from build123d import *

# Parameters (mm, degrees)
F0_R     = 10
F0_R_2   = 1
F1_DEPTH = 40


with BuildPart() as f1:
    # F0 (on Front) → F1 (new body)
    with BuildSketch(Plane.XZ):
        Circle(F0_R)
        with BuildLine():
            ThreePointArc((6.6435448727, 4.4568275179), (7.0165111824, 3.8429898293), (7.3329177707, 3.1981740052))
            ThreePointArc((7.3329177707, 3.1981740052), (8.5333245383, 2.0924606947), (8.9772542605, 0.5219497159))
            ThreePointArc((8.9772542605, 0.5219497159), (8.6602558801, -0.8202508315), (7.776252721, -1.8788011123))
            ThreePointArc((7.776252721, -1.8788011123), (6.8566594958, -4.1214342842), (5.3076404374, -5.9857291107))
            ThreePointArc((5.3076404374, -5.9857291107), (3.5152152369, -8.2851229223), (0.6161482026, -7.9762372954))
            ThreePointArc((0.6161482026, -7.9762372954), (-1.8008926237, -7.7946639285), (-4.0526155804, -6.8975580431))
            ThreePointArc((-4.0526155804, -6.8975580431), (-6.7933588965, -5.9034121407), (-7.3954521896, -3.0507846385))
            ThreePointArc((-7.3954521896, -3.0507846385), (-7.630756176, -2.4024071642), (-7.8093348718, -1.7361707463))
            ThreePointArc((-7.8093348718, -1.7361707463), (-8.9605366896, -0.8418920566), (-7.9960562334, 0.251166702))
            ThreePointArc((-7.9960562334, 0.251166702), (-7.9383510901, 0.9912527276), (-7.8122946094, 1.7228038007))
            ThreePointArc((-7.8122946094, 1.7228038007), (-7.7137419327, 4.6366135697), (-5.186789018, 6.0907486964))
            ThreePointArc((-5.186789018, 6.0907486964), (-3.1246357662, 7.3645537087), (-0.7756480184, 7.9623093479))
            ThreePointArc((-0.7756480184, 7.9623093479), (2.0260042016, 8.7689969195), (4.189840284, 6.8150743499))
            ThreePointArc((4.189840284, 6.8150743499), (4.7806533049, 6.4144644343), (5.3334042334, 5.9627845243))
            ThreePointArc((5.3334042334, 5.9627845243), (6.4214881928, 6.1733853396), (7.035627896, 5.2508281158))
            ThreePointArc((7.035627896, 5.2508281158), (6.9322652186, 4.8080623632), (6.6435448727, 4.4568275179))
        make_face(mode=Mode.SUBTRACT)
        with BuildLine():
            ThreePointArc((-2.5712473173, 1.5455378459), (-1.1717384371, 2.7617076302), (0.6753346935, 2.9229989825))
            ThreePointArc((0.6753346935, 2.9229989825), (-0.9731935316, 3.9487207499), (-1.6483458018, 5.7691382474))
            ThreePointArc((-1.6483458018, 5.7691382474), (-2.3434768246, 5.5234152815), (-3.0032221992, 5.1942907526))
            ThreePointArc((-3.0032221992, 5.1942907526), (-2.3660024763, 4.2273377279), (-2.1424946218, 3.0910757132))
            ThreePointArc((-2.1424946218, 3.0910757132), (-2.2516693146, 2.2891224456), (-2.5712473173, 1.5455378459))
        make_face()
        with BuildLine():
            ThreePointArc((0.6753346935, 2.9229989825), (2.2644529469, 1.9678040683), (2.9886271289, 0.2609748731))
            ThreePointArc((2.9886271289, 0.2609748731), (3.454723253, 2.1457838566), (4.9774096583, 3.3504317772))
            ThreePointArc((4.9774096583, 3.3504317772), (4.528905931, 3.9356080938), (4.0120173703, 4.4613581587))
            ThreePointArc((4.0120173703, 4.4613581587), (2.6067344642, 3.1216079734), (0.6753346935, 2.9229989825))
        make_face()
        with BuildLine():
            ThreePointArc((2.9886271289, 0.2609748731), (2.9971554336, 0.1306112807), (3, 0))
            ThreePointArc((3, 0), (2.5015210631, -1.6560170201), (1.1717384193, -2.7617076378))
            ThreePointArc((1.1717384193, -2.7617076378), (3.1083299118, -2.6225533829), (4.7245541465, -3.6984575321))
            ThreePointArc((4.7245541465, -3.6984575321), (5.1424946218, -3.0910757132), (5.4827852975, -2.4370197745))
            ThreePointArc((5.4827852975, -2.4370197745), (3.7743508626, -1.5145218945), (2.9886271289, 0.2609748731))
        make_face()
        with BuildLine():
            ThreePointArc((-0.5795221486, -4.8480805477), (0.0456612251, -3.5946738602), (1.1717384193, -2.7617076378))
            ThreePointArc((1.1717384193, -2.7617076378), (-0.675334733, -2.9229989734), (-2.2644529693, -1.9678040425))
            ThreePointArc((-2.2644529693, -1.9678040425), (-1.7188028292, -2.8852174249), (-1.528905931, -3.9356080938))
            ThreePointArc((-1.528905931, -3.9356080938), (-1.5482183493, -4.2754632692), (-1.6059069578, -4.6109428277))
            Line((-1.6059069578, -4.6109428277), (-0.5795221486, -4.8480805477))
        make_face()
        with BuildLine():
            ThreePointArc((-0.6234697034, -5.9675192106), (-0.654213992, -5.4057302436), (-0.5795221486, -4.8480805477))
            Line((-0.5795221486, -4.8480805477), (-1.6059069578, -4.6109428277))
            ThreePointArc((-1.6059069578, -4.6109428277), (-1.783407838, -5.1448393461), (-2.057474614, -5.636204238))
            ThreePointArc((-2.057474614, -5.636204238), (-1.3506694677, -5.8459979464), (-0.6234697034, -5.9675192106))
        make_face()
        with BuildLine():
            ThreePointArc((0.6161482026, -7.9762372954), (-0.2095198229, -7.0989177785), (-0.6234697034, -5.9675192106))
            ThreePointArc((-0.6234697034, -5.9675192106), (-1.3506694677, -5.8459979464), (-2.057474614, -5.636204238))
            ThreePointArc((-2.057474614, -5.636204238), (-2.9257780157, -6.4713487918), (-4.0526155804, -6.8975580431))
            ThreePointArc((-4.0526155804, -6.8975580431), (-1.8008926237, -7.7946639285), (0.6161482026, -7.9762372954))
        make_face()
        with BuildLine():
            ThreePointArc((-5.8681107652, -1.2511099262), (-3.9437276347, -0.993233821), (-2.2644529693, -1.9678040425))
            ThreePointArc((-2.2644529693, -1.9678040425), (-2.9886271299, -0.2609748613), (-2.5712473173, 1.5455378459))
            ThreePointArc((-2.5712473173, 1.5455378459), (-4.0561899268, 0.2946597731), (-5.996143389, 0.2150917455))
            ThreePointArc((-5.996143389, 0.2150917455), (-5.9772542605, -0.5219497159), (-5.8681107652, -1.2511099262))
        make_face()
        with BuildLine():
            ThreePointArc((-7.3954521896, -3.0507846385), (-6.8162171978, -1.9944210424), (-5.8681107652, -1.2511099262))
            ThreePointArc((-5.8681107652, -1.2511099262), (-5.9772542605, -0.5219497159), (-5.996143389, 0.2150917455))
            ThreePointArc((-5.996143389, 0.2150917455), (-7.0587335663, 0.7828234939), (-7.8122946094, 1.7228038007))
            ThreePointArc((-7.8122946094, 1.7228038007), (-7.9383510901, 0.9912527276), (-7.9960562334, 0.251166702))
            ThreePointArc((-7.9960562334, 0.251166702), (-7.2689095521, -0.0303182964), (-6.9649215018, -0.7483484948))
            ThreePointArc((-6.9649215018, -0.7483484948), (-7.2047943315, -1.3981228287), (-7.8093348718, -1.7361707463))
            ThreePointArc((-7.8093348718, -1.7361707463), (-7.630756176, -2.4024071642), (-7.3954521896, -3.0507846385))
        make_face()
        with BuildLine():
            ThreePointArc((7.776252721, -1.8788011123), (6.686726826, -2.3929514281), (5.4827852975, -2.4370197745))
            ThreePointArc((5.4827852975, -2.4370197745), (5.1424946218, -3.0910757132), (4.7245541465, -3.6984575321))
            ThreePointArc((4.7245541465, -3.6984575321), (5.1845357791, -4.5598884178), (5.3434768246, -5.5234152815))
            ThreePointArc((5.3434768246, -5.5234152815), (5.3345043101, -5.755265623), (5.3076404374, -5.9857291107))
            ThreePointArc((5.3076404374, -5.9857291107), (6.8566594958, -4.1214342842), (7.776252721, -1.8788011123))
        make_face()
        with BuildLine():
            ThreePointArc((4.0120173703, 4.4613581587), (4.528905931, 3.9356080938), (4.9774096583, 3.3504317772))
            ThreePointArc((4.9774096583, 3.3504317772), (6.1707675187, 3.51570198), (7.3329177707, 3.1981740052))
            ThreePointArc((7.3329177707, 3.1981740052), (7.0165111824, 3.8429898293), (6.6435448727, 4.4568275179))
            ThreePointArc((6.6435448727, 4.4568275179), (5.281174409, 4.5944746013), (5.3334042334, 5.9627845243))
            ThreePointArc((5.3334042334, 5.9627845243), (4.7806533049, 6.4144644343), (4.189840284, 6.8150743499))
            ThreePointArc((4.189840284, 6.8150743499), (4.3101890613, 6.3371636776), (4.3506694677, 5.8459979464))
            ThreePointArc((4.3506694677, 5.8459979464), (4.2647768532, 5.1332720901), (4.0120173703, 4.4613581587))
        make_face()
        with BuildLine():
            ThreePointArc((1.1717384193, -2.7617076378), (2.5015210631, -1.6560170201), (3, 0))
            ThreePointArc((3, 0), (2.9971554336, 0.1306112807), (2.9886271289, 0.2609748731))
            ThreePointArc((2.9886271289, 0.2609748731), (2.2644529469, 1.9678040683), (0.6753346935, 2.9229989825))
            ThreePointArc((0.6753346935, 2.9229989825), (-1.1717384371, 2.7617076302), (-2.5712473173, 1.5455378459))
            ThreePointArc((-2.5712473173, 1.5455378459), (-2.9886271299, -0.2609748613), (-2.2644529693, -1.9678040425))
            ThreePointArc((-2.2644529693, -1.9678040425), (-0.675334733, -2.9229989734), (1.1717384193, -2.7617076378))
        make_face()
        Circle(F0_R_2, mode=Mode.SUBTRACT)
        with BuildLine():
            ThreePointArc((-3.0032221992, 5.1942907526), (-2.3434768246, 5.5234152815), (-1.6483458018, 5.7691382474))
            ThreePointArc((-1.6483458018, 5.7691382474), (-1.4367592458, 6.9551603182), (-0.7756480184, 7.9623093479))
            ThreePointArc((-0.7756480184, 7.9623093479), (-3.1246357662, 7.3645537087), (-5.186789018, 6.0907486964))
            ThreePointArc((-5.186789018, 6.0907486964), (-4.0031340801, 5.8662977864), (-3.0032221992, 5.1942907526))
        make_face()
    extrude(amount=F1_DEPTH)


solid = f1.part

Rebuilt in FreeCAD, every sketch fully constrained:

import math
import FreeCAD as App
import Part
import Sketcher
Q = App.Units.Quantity

doc = App.newDocument("Part")
body = doc.addObject("PartDesign::Body", "Body")

sketch1 = body.newObject("Sketcher::SketchObject", "Sketch")
sketch1.AttachmentSupport = (doc.getObject("XZ_Plane"), [""])
sketch1.MapMode = "FlatFace"
sketch1.addGeometry([
    Part.Circle(App.Vector(0, 0, 0), App.Vector(0, 0, 1), 10),
    Part.ArcOfCircle(Part.Circle(App.Vector(-4.53, -3.94, 0), App.Vector(0, 0, 1), 3), math.radians(41), math.radians(117)),
    Part.ArcOfCircle(Part.Circle(App.Vector(-4.53, -3.94, 0), App.Vector(0, 0, 1), 3), math.radians(0), math.radians(41)),
    Part.ArcOfCircle(Part.Circle(App.Vector(-4.53, -3.94, 0), App.Vector(0, 0, 1), 3), math.radians(-13.01), math.radians(0)),
    Part.ArcOfCircle(Part.Circle(App.Vector(-4.53, -3.94, 0), App.Vector(0, 0, 1), 3), math.radians(-35), math.radians(-13)),
    Part.ArcOfCircle(Part.Circle(App.Vector(-4.53, -3.94, 0), App.Vector(0, 0, 1), 3), math.radians(-81), math.radians(-35)),
    Part.ArcOfCircle(Part.Circle(App.Vector(-4.53, -3.94, 0), App.Vector(0, 0, 1), 3), math.radians(163), math.radians(279)),
    Part.ArcOfCircle(Part.Circle(App.Vector(-4.53, -3.94, 0), App.Vector(0, 0, 1), 3), math.radians(117), math.radians(163)),
    Part.ArcOfCircle(Part.Circle(App.Vector(-7.96, -0.75, 0), App.Vector(0, 0, 1), 1), math.radians(92), math.radians(279)),
    Part.ArcOfCircle(Part.Circle(App.Vector(-7.96, -0.75, 0), App.Vector(0, 0, 1), 1), math.radians(0), math.radians(92)),
    Part.ArcOfCircle(Part.Circle(App.Vector(-7.96, -0.75, 0), App.Vector(0, 0, 1), 1), math.radians(-81), math.radians(0)),
    Part.Circle(App.Vector(0, 0, 0), App.Vector(0, 0, 1), 1),
    Part.ArcOfCircle(Part.Circle(App.Vector(2.34, -5.52, 0), App.Vector(0, 0, 1), 3), math.radians(113), math.radians(167)),
    Part.ArcOfCircle(Part.Circle(App.Vector(2.34, -5.52, 0), App.Vector(0, 0, 1), 3), math.radians(37), math.radians(113)),
    Part.ArcOfCircle(Part.Circle(App.Vector(2.34, -5.52, 0), App.Vector(0, 0, 1), 3), math.radians(0), math.radians(37)),
    Part.ArcOfCircle(Part.Circle(App.Vector(2.34, -5.52, 0), App.Vector(0, 0, 1), 3), math.radians(-8.86), math.radians(0)),
    Part.ArcOfCircle(Part.Circle(App.Vector(2.34, -5.52, 0), App.Vector(0, 0, 1), 3), math.radians(-125), math.radians(-9)),
    Part.ArcOfCircle(Part.Circle(App.Vector(2.34, -5.52, 0), App.Vector(0, 0, 1), 3), math.radians(-171), math.radians(-125)),
    Part.ArcOfCircle(Part.Circle(App.Vector(2.34, -5.52, 0), App.Vector(0, 0, 1), 3), math.radians(167), math.radians(189)),
    Part.ArcOfCircle(Part.Circle(App.Vector(1.35, 5.85, 0), App.Vector(0, 0, 1), 3), math.radians(-103), math.radians(-27)),
    Part.ArcOfCircle(Part.Circle(App.Vector(1.35, 5.85, 0), App.Vector(0, 0, 1), 3), math.radians(-179), math.radians(-103)),
    Part.ArcOfCircle(Part.Circle(App.Vector(1.35, 5.85, 0), App.Vector(0, 0, 1), 3), math.radians(135), math.radians(181)),
    Part.ArcOfCircle(Part.Circle(App.Vector(1.35, 5.85, 0), App.Vector(0, 0, 1), 3), math.radians(19), math.radians(135)),
    Part.ArcOfCircle(Part.Circle(App.Vector(1.35, 5.85, 0), App.Vector(0, 0, 1), 3), math.radians(0), math.radians(18.85)),
    Part.ArcOfCircle(Part.Circle(App.Vector(1.35, 5.85, 0), App.Vector(0, 0, 1), 3), math.radians(-27), math.radians(0)),
    Part.ArcOfCircle(Part.Circle(App.Vector(-5.14, 3.09, 0), App.Vector(0, 0, 1), 3), math.radians(0), math.radians(45)),
    Part.ArcOfCircle(Part.Circle(App.Vector(-5.14, 3.09, 0), App.Vector(0, 0, 1), 3), math.radians(-31), math.radians(0)),
    Part.ArcOfCircle(Part.Circle(App.Vector(-5.14, 3.09, 0), App.Vector(0, 0, 1), 3), math.radians(-107), math.radians(-31)),
    Part.ArcOfCircle(Part.Circle(App.Vector(-5.14, 3.09, 0), App.Vector(0, 0, 1), 3), math.radians(-153), math.radians(-107)),
    Part.ArcOfCircle(Part.Circle(App.Vector(-5.14, 3.09, 0), App.Vector(0, 0, 1), 3), math.radians(91), math.radians(207)),
    Part.ArcOfCircle(Part.Circle(App.Vector(-5.14, 3.09, 0), App.Vector(0, 0, 1), 3), math.radians(45), math.radians(91)),
    Part.ArcOfCircle(Part.Circle(App.Vector(5.98, 0.52, 0), App.Vector(0, 0, 1), 3), math.radians(-175), math.radians(-99)),
    Part.ArcOfCircle(Part.Circle(App.Vector(5.98, 0.52, 0), App.Vector(0, 0, 1), 3), math.radians(109), math.radians(185)),
    Part.ArcOfCircle(Part.Circle(App.Vector(5.98, 0.52, 0), App.Vector(0, 0, 1), 3), math.radians(63), math.radians(109)),
    Part.ArcOfCircle(Part.Circle(App.Vector(5.98, 0.52, 0), App.Vector(0, 0, 1), 3), math.radians(0), math.radians(63)),
    Part.ArcOfCircle(Part.Circle(App.Vector(5.98, 0.52, 0), App.Vector(0, 0, 1), 3), math.radians(-53), math.radians(0)),
    Part.ArcOfCircle(Part.Circle(App.Vector(5.98, 0.52, 0), App.Vector(0, 0, 1), 3), math.radians(-99), math.radians(-53)),
    Part.ArcOfCircle(Part.Circle(App.Vector(6.04, 5.25, 0), App.Vector(0, 0, 1), 1), math.radians(-53), math.radians(0)),
    Part.ArcOfCircle(Part.Circle(App.Vector(6.04, 5.25, 0), App.Vector(0, 0, 1), 1), math.radians(135), math.radians(307)),
    Part.ArcOfCircle(Part.Circle(App.Vector(6.04, 5.25, 0), App.Vector(0, 0, 1), 1), math.radians(0), math.radians(135)),
], False)
sketch1.addConstraint([
    Sketcher.Constraint("Tangent", 1, 1, 2, 2),
    Sketcher.Constraint("Tangent", 2, 1, 3, 2),
    Sketcher.Constraint("Tangent", 3, 1, 4, 2),
    Sketcher.Constraint("Tangent", 4, 1, 5, 2),
    Sketcher.Constraint("Tangent", 5, 1, 6, 2),
    Sketcher.Constraint("Tangent", 6, 1, 7, 2),
    Sketcher.Constraint("Tangent", 7, 1, 1, 2),
    Sketcher.Constraint("Tangent", 8, 1, 9, 2),
    Sketcher.Constraint("Tangent", 9, 1, 10, 2),
    Sketcher.Constraint("Tangent", 10, 1, 8, 2),
    Sketcher.Constraint("Tangent", 12, 1, 13, 2),
    Sketcher.Constraint("Tangent", 13, 1, 14, 2),
    Sketcher.Constraint("Tangent", 14, 1, 15, 2),
    Sketcher.Constraint("Tangent", 15, 1, 16, 2),
    Sketcher.Constraint("Tangent", 16, 1, 17, 2),
    Sketcher.Constraint("Tangent", 17, 1, 18, 2),
    Sketcher.Constraint("Tangent", 18, 1, 12, 2),
    Sketcher.Constraint("Tangent", 19, 1, 20, 2),
    Sketcher.Constraint("Tangent", 20, 1, 21, 2),
    Sketcher.Constraint("Tangent", 21, 1, 22, 2),
    Sketcher.Constraint("Tangent", 22, 1, 23, 2),
    Sketcher.Constraint("Tangent", 23, 1, 24, 2),
    Sketcher.Constraint("Tangent", 24, 1, 19, 2),
    Sketcher.Constraint("Tangent", 25, 1, 26, 2),
    Sketcher.Constraint("Tangent", 26, 1, 27, 2),
    Sketcher.Constraint("Tangent", 27, 1, 28, 2),
    Sketcher.Constraint("Tangent", 28, 1, 29, 2),
    Sketcher.Constraint("Tangent", 29, 1, 30, 2),
    Sketcher.Constraint("Tangent", 30, 1, 25, 2),
    Sketcher.Constraint("Tangent", 31, 1, 32, 2),
    Sketcher.Constraint("Tangent", 32, 1, 33, 2),
    Sketcher.Constraint("Tangent", 33, 1, 34, 2),
    Sketcher.Constraint("Tangent", 34, 1, 35, 2),
    Sketcher.Constraint("Tangent", 35, 1, 36, 2),
    Sketcher.Constraint("Tangent", 36, 1, 31, 2),
    Sketcher.Constraint("Tangent", 37, 1, 38, 2),
    Sketcher.Constraint("Tangent", 38, 1, 39, 2),
    Sketcher.Constraint("Tangent", 39, 1, 37, 2),
    Sketcher.Constraint("Coincident", 0, 3, -1, 1),
    Sketcher.Constraint("Coincident", 11, 3, -1, 1),
    Sketcher.Constraint("Coincident", 3, 3, 1, 3),
    Sketcher.Constraint("Coincident", 5, 3, 1, 3),
    Sketcher.Constraint("Coincident", 14, 3, 12, 3),
    Sketcher.Constraint("Coincident", 16, 3, 12, 3),
    Sketcher.Constraint("Coincident", 21, 3, 19, 3),
    Sketcher.Constraint("Coincident", 27, 3, 25, 3),
    Sketcher.Constraint("Coincident", 33, 3, 31, 3),
    Sketcher.Constraint("Equal", 10, 11),
    Sketcher.Constraint("Equal", 7, 12),
    Sketcher.Constraint("Equal", 18, 19),
    Sketcher.Constraint("Equal", 21, 22),
    Sketcher.Constraint("Equal", 24, 25),
    Sketcher.Constraint("Equal", 27, 28),
    Sketcher.Constraint("Equal", 30, 31),
    Sketcher.Constraint("Equal", 33, 34),
    Sketcher.Constraint("Equal", 11, 37),
    Sketcher.Constraint("Horizontal", 7, 3, 2, 1),
    Sketcher.Constraint("Horizontal", 10, 3, 9, 1),
    Sketcher.Constraint("Horizontal", 18, 3, 14, 1),
    Sketcher.Constraint("Horizontal", 24, 3, 23, 1),
    Sketcher.Constraint("Horizontal", 30, 3, 25, 1),
    Sketcher.Constraint("Horizontal", 36, 3, 34, 1),
    Sketcher.Constraint("Horizontal", 38, 3, 39, 1),
    Sketcher.Constraint("Diameter", 0, Q("20 mm")),
    Sketcher.Constraint("Diameter", 11, Q("2 mm")),
    Sketcher.Constraint("Radius", 1, Q("3 mm")),
    Sketcher.Constraint("DistanceY", -1, 1, 19, 1, Q("2.922999 mm")),
    Sketcher.Constraint("DistanceY", 35, 1, -1, 1, Q("1.878801 mm")),
    Sketcher.Constraint("DistanceY", 1, 3, -1, 1, Q("3.935608 mm")),
    Sketcher.Constraint("DistanceX", 8, 3, -1, 1, Q("7.964922 mm")),
    Sketcher.Constraint("DistanceY", 8, 3, -1, 1, Q("0.748348 mm")),
    Sketcher.Constraint("DistanceX", -1, 1, 19, 3, Q("1.350669 mm")),
    Sketcher.Constraint("DistanceY", -1, 1, 31, 3, Q("0.52195 mm")),
    Sketcher.Constraint("DistanceY", -1, 1, 37, 3, Q("5.250828 mm")),
    Sketcher.Constraint("DistanceY", 5, 1, -1, 1, Q("6.897558 mm")),
    Sketcher.Constraint("DistanceX", 7, 1, -1, 1, Q("5.868111 mm")),
    Sketcher.Constraint("DistanceY", 7, 1, -1, 1, Q("1.25111 mm")),
    Sketcher.Constraint("DistanceY", 10, 1, -1, 1, Q("1.736171 mm")),
    Sketcher.Constraint("DistanceX", -1, 1, 12, 1, Q("1.171738 mm")),
    Sketcher.Constraint("DistanceX", -1, 1, 15, 1, Q("5.30764 mm")),
    Sketcher.Constraint("DistanceY", 15, 1, -1, 1, Q("5.985729 mm")),
    Sketcher.Constraint("DistanceX", -1, 1, 16, 1, Q("0.616148 mm")),
    Sketcher.Constraint("DistanceX", 17, 1, -1, 1, Q("0.62347 mm")),
    Sketcher.Constraint("DistanceY", 17, 1, -1, 1, Q("5.967519 mm")),
    Sketcher.Constraint("DistanceY", 18, 1, -1, 1, Q("4.848081 mm")),
    Sketcher.Constraint("DistanceY", -1, 1, 20, 1, Q("5.769138 mm")),
    Sketcher.Constraint("DistanceX", 21, 1, -1, 1, Q("0.775648 mm")),
    Sketcher.Constraint("DistanceY", -1, 1, 21, 1, Q("7.962309 mm")),
    Sketcher.Constraint("DistanceX", -1, 1, 22, 1, Q("4.18984 mm")),
    Sketcher.Constraint("DistanceY", -1, 1, 24, 1, Q("4.461358 mm")),
    Sketcher.Constraint("DistanceY", -1, 1, 27, 1, Q("0.215092 mm")),
    Sketcher.Constraint("DistanceX", 29, 1, -1, 1, Q("5.186789 mm")),
    Sketcher.Constraint("DistanceY", -1, 1, 29, 1, Q("6.090749 mm")),
    Sketcher.Constraint("DistanceY", -1, 1, 30, 1, Q("5.194291 mm")),
    Sketcher.Constraint("DistanceX", -1, 1, 32, 1, Q("4.97741 mm")),
    Sketcher.Constraint("DistanceY", -1, 1, 32, 1, Q("3.350432 mm")),
    Sketcher.Constraint("DistanceY", 36, 1, -1, 1, Q("2.43702 mm")),
    Sketcher.Constraint("DistanceX", 25, 3, -1, 1, Q("5.142495 mm")),
    Sketcher.Constraint("DistanceX", -1, 1, 37, 3, Q("6.035628 mm")),
    Sketcher.Constraint("DistanceX", 1, 1, -1, 1, Q("2.264453 mm")),
    Sketcher.Constraint("DistanceX", 3, 1, -1, 1, Q("1.605907 mm")),
    Sketcher.Constraint("DistanceX", 4, 1, -1, 1, Q("2.057475 mm")),
    Sketcher.Constraint("DistanceX", 6, 1, -1, 1, Q("7.395452 mm")),
    Sketcher.Constraint("DistanceX", 8, 1, -1, 1, Q("7.996056 mm")),
    Sketcher.Constraint("DistanceX", -1, 1, 13, 1, Q("4.724554 mm")),
    Sketcher.Constraint("DistanceX", 26, 1, -1, 1, Q("2.571247 mm")),
    Sketcher.Constraint("DistanceX", 28, 1, -1, 1, Q("7.812295 mm")),
    Sketcher.Constraint("DistanceX", -1, 1, 31, 1, Q("2.988627 mm")),
    Sketcher.Constraint("DistanceX", -1, 1, 33, 1, Q("7.332918 mm")),
    Sketcher.Constraint("DistanceX", -1, 1, 37, 1, Q("6.643545 mm")),
    Sketcher.Constraint("DistanceX", -1, 1, 38, 1, Q("5.333404 mm")),
])
pad1 = body.newObject("PartDesign::Pad", "Pad")
pad1.Profile = sketch1
pad1.Length = 40

doc.recompute()
